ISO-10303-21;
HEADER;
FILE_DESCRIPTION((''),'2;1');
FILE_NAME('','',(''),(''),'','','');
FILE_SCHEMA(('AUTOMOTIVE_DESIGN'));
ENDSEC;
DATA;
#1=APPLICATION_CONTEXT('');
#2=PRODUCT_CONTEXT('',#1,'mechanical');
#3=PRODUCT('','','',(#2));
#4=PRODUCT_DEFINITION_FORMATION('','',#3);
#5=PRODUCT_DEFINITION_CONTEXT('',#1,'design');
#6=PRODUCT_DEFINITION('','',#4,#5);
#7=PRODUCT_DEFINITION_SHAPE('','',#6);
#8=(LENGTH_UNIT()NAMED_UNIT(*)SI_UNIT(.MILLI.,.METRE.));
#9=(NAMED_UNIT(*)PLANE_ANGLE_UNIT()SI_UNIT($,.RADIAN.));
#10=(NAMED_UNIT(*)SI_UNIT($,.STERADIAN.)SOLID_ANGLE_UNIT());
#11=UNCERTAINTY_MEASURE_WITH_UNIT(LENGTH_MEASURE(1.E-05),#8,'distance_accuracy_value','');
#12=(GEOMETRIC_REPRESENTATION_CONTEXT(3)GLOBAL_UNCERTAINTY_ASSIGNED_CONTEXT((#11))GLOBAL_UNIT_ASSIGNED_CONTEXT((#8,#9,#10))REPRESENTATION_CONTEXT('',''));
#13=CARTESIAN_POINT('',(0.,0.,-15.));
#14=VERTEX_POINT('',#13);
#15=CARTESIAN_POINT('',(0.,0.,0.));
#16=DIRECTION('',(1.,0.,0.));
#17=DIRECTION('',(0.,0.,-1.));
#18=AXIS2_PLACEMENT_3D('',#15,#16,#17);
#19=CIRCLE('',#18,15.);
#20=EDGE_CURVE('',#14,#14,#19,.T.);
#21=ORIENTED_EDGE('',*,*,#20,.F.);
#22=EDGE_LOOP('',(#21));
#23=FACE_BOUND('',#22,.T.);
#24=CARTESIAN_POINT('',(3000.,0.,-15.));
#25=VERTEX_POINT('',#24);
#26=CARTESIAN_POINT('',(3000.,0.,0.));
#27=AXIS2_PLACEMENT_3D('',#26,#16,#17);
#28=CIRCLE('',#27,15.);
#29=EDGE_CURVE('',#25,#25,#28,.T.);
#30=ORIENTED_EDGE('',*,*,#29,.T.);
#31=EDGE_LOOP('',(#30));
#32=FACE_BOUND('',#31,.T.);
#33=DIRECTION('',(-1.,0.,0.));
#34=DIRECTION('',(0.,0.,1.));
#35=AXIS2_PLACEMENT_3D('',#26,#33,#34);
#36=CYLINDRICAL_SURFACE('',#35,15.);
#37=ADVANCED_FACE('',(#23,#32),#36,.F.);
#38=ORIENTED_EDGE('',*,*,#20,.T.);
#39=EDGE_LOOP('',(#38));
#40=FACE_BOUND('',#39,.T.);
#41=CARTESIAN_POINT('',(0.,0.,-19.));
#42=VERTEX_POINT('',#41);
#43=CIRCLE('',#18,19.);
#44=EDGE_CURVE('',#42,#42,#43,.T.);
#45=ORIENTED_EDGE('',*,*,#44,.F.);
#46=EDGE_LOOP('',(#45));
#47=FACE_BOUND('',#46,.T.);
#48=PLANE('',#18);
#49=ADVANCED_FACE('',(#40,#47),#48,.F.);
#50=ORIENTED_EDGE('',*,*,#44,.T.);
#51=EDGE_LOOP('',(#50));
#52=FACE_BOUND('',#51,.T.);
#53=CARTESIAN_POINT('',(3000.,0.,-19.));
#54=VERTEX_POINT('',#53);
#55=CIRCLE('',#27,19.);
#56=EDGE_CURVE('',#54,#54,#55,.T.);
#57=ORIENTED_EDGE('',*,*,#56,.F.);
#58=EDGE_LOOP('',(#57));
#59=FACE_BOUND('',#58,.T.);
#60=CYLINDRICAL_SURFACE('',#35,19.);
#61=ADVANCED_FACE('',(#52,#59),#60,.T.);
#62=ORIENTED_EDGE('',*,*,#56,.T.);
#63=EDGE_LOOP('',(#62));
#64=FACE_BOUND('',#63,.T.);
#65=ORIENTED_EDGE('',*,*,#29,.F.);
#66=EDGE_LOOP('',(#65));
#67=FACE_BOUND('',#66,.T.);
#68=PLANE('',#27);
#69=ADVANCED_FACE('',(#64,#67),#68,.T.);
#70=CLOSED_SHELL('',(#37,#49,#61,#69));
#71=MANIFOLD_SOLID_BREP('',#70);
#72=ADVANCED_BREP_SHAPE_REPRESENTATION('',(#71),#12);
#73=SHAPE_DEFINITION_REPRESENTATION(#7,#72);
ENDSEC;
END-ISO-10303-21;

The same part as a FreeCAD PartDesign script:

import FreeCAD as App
import Part
import Sketcher
from FreeCAD import Vector
Q = App.Units.Quantity

doc = App.newDocument("Part")
body = doc.addObject("PartDesign::Body", "Body")

# Sketch on YZ plane
sketch1 = body.newObject("Sketcher::SketchObject", "Sketch")
sketch1.AttachmentSupport = (doc.getObject("YZ_Plane"), [""])
sketch1.MapMode = "FlatFace"
sketch1.addGeometry(Part.Circle(Vector(0, 0, 0), Vector(0, 0, 1), 19), False)
sketch1.addGeometry(Part.Circle(Vector(0, 0, 0), Vector(0, 0, 1), 15), False)
sketch1.addConstraint(Sketcher.Constraint("Coincident", 0, 3, -1, 1))
sketch1.addConstraint(Sketcher.Constraint("Coincident", 1, 3, -1, 1))
sketch1.addConstraint(Sketcher.Constraint("Diameter", 0, Q("38 mm")))
sketch1.addConstraint(Sketcher.Constraint("Diameter", 1, Q("30 mm")))
pad1 = body.newObject("PartDesign::Pad", "Pad")
pad1.Profile = sketch1
pad1.Length = 3000

doc.recompute()
